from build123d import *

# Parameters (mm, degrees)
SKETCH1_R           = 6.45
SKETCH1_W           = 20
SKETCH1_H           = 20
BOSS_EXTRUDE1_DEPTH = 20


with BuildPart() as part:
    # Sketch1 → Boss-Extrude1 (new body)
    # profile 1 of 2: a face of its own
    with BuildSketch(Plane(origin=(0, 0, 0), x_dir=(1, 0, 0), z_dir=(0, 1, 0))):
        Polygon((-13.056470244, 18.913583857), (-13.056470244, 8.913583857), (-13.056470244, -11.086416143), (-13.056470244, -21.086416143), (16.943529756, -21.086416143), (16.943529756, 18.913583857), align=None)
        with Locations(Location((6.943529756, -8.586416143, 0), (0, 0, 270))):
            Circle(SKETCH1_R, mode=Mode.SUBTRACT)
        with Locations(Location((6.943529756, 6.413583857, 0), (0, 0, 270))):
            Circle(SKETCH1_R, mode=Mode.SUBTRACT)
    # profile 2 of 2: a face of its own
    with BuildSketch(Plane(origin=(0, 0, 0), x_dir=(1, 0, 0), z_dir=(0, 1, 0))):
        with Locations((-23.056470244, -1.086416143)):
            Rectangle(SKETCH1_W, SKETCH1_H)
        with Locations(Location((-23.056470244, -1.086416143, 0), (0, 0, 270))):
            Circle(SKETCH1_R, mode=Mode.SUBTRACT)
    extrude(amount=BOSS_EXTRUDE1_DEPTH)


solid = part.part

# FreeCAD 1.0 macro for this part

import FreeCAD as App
import Part
import Sketcher
from FreeCAD import Vector
Q = App.Units.Quantity


def add_polygon(sketch, points):
    """Adds a closed chain of lines whose ends are joined by coincident constraints."""
    first, n = sketch.GeometryCount, len(points)
    for a, b in zip(points, points[1:] + points[:1]):
        sketch.addGeometry(Part.LineSegment(App.Vector(*a, 0), App.Vector(*b, 0)), False)
    for i in range(n):
        sketch.addConstraint(Sketcher.Constraint("Coincident", first + i, 2, first + (i + 1) % n, 1))

doc = App.newDocument("Part")
body = doc.addObject("PartDesign::Body", "Body")

# Sketch on XZ plane
sketch1 = body.newObject("Sketcher::SketchObject", "Sketch")
sketch1.AttachmentSupport = (doc.getObject("XZ_Plane"), [""])
sketch1.MapMode = "FlatFace"
add_polygon(sketch1, [(-13.05647, -18.913584), (-13.05647, -8.913584), (-33.05647, -8.913584), (-33.05647, 11.086416), (-13.05647, 11.086416), (-13.05647, 21.086416), (16.94353, 21.086416), (16.94353, -18.913584)])  # lines 0-7
sketch1.addGeometry(Part.Circle(Vector(6.94353, 8.586416, 0), Vector(0, 0, 1), 6.45), False)  # 8
sketch1.addGeometry(Part.Circle(Vector(6.94353, -6.413584, 0), Vector(0, 0, 1), 6.45), False)  # 9
sketch1.addGeometry(Part.Circle(Vector(-23.05647, 1.086416, 0), Vector(0, 0, 1), 6.45), False)  # 10
sketch1.addConstraint([
    Sketcher.Constraint("Vertical", 0),
    Sketcher.Constraint("Horizontal", 1),
    Sketcher.Constraint("Vertical", 2),
    Sketcher.Constraint("Horizontal", 3),
    Sketcher.Constraint("Vertical", 4),
    Sketcher.Constraint("Horizontal", 5),
    Sketcher.Constraint("Vertical", 6),
    Sketcher.Constraint("Horizontal", 7),
    Sketcher.Constraint("Equal", 8, 9),
    Sketcher.Constraint("Equal", 9, 10),
    Sketcher.Constraint("Vertical", 8, 3, 9, 3),
    Sketcher.Constraint("Vertical", 0, 2, 3, 2),
    Sketcher.Constraint("Equal", 3, 2),
    Sketcher.Constraint("Equal", 0, 4),
    Sketcher.Constraint("Diameter", 8, Q("12.9 mm")),
    Sketcher.Constraint("DistanceX", 1, 2, 1, 1, Q("20 mm")),
    Sketcher.Constraint("DistanceX", 5, 1, 5, 2, Q("30 mm")),
    Sketcher.Constraint("DistanceY", 0, 1, 0, 2, Q("10 mm")),
    Sketcher.Constraint("DistanceY", 9, 3, 8, 3, Q("15 mm")),
    Sketcher.Constraint("DistanceX", 10, 3, 8, 3, Q("30 mm")),
    Sketcher.Constraint("DistanceX", 10, 3, 0, 2, Q("10 mm")),
    Sketcher.Constraint("DistanceY", 0, 2, 10, 3, Q("10 mm")),
    Sketcher.Constraint("DistanceY", 10, 3, 8, 3, Q("7.5 mm")),
    Sketcher.Constraint("DistanceX", -1, 1, 8, 3, Q("6.94353 mm")),
    Sketcher.Constraint("DistanceY", -1, 1, 8, 3, Q("8.586416 mm")),
])
pad1 = body.newObject("PartDesign::Pad", "Pad")
pad1.Profile = sketch1
pad1.Length = 20
pad1.Reversed = True

doc.recompute()
